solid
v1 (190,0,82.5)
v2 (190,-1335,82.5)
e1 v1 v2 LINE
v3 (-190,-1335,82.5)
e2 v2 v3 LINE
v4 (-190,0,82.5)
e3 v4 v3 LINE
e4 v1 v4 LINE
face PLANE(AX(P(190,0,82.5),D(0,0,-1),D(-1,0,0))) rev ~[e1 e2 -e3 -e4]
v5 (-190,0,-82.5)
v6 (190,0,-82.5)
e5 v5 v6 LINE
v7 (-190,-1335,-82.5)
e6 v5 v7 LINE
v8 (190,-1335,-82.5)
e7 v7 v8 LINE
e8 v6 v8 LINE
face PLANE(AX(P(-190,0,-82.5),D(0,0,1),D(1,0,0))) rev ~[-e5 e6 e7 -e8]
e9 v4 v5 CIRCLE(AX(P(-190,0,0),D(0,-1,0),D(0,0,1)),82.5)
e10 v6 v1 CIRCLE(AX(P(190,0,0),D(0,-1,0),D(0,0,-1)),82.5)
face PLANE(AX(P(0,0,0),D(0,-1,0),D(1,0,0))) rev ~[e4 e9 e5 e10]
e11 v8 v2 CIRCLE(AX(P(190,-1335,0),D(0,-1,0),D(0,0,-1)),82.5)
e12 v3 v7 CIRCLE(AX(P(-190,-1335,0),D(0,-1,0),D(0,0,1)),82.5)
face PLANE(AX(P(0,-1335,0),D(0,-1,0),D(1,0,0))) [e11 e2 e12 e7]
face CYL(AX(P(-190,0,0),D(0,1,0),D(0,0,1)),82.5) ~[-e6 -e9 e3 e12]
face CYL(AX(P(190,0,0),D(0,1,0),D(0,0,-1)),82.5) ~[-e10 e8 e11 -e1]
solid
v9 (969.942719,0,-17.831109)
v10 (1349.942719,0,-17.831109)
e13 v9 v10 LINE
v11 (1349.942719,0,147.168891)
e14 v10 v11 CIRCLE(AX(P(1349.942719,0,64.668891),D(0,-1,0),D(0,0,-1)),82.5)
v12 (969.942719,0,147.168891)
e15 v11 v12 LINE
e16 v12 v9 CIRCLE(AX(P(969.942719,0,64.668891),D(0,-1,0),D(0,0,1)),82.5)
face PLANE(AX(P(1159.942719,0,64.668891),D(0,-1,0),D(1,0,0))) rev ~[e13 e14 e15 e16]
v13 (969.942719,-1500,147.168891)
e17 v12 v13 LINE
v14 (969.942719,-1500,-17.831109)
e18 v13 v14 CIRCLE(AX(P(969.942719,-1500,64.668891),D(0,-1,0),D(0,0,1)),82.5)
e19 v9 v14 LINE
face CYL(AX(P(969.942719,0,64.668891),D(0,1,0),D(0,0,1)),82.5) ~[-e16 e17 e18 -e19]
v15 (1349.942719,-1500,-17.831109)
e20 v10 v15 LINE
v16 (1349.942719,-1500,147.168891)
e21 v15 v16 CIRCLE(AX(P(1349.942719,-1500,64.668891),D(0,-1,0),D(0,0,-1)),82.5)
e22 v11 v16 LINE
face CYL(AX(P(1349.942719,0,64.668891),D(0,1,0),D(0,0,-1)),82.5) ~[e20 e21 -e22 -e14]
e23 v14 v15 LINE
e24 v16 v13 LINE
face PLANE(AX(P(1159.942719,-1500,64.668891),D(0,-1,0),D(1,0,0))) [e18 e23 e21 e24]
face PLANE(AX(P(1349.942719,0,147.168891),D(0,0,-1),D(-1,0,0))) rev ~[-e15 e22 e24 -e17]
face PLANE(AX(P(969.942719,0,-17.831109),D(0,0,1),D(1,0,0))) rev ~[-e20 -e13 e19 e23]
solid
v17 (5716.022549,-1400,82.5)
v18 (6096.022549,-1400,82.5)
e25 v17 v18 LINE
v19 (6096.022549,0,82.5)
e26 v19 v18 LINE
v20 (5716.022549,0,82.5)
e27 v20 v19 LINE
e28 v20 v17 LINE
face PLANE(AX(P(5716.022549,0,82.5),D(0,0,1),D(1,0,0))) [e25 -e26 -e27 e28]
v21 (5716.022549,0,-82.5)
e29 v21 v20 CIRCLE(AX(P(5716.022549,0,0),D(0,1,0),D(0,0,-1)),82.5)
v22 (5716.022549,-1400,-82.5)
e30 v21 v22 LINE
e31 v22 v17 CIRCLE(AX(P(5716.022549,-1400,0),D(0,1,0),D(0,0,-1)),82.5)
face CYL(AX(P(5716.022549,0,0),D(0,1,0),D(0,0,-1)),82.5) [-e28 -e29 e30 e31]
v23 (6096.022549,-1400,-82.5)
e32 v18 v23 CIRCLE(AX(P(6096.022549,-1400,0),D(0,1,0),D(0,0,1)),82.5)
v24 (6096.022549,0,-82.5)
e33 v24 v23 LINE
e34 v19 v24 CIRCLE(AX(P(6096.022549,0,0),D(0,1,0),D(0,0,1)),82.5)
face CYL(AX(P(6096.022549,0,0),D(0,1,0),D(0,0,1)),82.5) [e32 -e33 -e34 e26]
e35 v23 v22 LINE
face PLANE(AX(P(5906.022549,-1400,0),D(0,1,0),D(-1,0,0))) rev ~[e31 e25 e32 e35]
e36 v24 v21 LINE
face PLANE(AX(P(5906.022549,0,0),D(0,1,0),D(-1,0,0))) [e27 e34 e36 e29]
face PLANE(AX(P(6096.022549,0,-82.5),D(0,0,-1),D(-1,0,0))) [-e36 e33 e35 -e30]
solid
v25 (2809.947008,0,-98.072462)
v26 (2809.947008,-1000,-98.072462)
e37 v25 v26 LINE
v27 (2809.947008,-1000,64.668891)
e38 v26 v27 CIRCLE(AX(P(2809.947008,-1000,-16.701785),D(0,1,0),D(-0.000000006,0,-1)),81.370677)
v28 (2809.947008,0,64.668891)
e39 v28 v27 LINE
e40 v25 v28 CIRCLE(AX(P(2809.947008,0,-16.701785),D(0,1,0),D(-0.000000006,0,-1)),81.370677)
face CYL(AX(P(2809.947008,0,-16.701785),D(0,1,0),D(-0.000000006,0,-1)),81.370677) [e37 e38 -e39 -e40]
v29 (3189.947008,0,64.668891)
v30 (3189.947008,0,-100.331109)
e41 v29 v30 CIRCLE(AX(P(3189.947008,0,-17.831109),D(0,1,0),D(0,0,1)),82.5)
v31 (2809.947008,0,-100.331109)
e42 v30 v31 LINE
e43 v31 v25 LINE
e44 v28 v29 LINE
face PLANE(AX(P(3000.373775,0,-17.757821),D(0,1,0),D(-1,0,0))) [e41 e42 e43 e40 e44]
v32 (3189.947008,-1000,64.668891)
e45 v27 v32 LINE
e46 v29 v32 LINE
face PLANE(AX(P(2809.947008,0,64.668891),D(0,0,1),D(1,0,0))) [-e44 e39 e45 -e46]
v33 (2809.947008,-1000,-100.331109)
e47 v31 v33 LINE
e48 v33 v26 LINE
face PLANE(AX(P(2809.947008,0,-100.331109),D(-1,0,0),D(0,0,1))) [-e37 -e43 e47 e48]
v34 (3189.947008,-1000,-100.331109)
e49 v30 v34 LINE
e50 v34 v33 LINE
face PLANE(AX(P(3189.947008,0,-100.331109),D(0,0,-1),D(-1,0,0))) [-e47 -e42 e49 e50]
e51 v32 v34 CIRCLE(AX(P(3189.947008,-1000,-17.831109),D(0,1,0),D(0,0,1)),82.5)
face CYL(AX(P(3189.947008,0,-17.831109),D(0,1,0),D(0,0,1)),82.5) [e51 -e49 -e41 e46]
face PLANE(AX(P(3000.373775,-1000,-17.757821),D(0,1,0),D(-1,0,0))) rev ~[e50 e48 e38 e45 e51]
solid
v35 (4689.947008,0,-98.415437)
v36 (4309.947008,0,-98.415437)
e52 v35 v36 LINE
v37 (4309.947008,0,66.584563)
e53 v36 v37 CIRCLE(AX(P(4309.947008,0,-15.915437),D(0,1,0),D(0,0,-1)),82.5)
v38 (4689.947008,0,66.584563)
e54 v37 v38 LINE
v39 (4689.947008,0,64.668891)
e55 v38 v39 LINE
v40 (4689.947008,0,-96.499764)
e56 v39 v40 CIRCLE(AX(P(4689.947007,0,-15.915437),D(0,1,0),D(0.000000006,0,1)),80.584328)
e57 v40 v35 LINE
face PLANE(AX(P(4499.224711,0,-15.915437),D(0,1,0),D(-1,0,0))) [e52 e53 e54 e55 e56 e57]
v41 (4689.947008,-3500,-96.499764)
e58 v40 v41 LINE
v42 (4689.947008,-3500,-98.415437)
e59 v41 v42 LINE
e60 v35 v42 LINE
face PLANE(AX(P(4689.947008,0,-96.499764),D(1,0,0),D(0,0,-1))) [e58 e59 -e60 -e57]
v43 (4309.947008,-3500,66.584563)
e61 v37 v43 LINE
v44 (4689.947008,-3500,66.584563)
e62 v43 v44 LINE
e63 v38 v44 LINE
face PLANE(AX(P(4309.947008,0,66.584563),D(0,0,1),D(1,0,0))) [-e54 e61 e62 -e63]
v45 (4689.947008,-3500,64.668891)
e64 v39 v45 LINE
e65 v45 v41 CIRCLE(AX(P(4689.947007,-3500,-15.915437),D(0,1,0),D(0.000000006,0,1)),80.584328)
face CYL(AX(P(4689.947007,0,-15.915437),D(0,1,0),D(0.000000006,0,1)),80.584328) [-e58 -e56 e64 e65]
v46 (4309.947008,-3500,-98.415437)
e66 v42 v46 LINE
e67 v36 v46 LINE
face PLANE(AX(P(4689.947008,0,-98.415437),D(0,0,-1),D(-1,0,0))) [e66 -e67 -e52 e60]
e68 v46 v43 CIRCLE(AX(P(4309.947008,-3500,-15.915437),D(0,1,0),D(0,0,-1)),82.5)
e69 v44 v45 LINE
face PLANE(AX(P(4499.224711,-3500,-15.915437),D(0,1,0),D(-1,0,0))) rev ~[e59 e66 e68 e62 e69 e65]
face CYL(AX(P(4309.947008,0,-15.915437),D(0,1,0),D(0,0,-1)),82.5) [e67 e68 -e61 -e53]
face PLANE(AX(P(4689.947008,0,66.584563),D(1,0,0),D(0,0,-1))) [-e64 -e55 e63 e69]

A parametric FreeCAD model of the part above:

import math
import FreeCAD as App
import Part
import Sketcher

V = App.Vector

doc = App.newDocument("Part")
params = doc.addObject("Spreadsheet::Sheet", "Params")
for row, (alias, value) in enumerate([
    ("sketch1_radius", "82.5 mm"),
    ("sketch1_width", "380 mm"),
    ("pad1_length", "1335 mm"),
    ("sketch2_radius", "82.5 mm"),
    ("sketch2_width", "380 mm"),
    ("pad2_length", "1500 mm"),
    ("sketch3_radius", "82.5 mm"),
    ("sketch3_width", "380 mm"),
    ("pad3_length", "1000 mm"),
    ("sketch4_radius", "82.5 mm"),
    ("sketch4_width", "380 mm"),
    ("pad4_length", "3500 mm"),
    ("sketch5_radius", "82.5 mm"),
    ("sketch5_width", "380 mm"),
    ("pad5_length", "1400 mm"),
], start=1):
    params.set(f"A{row}", alias)
    params.set(f"B{row}", "=" + value)
    params.setAlias(f"B{row}", alias)

body = doc.addObject("PartDesign::Body", "Body")

sketch1 = body.newObject("Sketcher::SketchObject", "Sketch")
sketch1.AttachmentSupport = (doc.getObject("XZ_Plane"), [""])
sketch1.MapMode = "FlatFace"
sketch1.addGeometry([
    Part.LineSegment(V(-190, -82, 0), V(190, -82, 0)),
    Part.ArcOfCircle(Part.Circle(V(190, 0, 0), V(0, 0, 1), 82), math.radians(-90), math.radians(90)),
    Part.LineSegment(V(190, 82, 0), V(-190, 82, 0)),
    Part.ArcOfCircle(Part.Circle(V(-190, 0, 0), V(0, 0, 1), 82), math.radians(90), math.radians(270)),
], False)
sketch1.addConstraint([
    Sketcher.Constraint("Tangent", 0, 2, 1, 1),
    Sketcher.Constraint("Tangent", 1, 2, 2, 1),
    Sketcher.Constraint("Tangent", 2, 2, 3, 1),
    Sketcher.Constraint("Tangent", 3, 2, 0, 1),
    Sketcher.Constraint("Horizontal", 0),
    Sketcher.Constraint("Horizontal", 2),
    Sketcher.Constraint("Symmetric", 1, 3, 3, 3, -1, 1),
    Sketcher.Constraint("Radius", 1, 82.5),
    Sketcher.Constraint("DistanceX", 0, 1, 0, 2, 380.0),
])
sketch1.setExpression("Constraints[7]", "Params.sketch1_radius")
sketch1.setExpression("Constraints[8]", "Params.sketch1_width")
pad1 = body.newObject("PartDesign::Pad", "Pad")
pad1.Profile = sketch1
pad1.setExpression("Length", "Params.pad1_length")
body2 = doc.addObject("PartDesign::Body", "Body001")

sketch2 = body2.newObject("Sketcher::SketchObject", "Sketch001")
sketch2.AttachmentSupport = (doc.getObject("XZ_Plane001"), [""])
sketch2.MapMode = "FlatFace"
sketch2.addGeometry([
    Part.LineSegment(V(970, -18, 0), V(1350, -18, 0)),
    Part.ArcOfCircle(Part.Circle(V(1350, 65, 0), V(0, 0, 1), 82), math.radians(-90), math.radians(90)),
    Part.LineSegment(V(1350, 147, 0), V(970, 147, 0)),
    Part.ArcOfCircle(Part.Circle(V(970, 65, 0), V(0, 0, 1), 82), math.radians(90), math.radians(270)),
], False)
sketch2.addConstraint([
    Sketcher.Constraint("Tangent", 0, 2, 1, 1),
    Sketcher.Constraint("Tangent", 1, 2, 2, 1),
    Sketcher.Constraint("Tangent", 2, 2, 3, 1),
    Sketcher.Constraint("Tangent", 3, 2, 0, 1),
    Sketcher.Constraint("Horizontal", 0),
    Sketcher.Constraint("Horizontal", 2),
    Sketcher.Constraint("Radius", 1, 82.5),
    Sketcher.Constraint("DistanceX", 0, 1, 0, 2, 380.0),
    Sketcher.Constraint("DistanceX", -1, 1, 1, 3, 1349.942719),
    Sketcher.Constraint("DistanceY", -1, 1, 1, 3, 64.668891),
])
sketch2.setExpression("Constraints[6]", "Params.sketch2_radius")
sketch2.setExpression("Constraints[7]", "Params.sketch2_width")
pad2 = body2.newObject("PartDesign::Pad", "Pad001")
pad2.Profile = sketch2
pad2.setExpression("Length", "Params.pad2_length")
body3 = doc.addObject("PartDesign::Body", "Body002")

sketch3 = body3.newObject("Sketcher::SketchObject", "Sketch002")
sketch3.AttachmentSupport = (doc.getObject("XZ_Plane002"), [""])
sketch3.MapMode = "FlatFace"
sketch3.addGeometry([
    Part.ArcOfCircle(Part.Circle(V(3189.9, -17.8, 0), V(0, 0, 1), 82.5), math.radians(-90), math.radians(90)),
    Part.LineSegment(V(3189.9, -100.3, 0), V(2809.9, -100.3, 0)),
    Part.LineSegment(V(2809.9, -100.3, 0), V(2809.9, -98.1, 0)),
    Part.ArcOfCircle(Part.Circle(V(2809.9, -16.7, 0), V(0, 0, 1), 81.4), math.radians(90), math.radians(270)),
    Part.LineSegment(V(2809.9, 64.7, 0), V(3189.9, 64.7, 0)),
], False)
sketch3.addConstraint([
    Sketcher.Constraint("Tangent", 0, 1, 1, 1),
    Sketcher.Constraint("Coincident", 1, 2, 2, 1),
    Sketcher.Constraint("Coincident", 2, 2, 3, 2),
    Sketcher.Constraint("Tangent", 3, 1, 4, 1),
    Sketcher.Constraint("Tangent", 4, 2, 0, 2),
    Sketcher.Constraint("Horizontal", 1),
    Sketcher.Constraint("Vertical", 2),
    Sketcher.Constraint("Horizontal", 4),
    Sketcher.Constraint("Vertical", 3, 3, 1, 2),
    Sketcher.Constraint("Radius", 0, 82.5),
    Sketcher.Constraint("DistanceX", 1, 2, 1, 1, 380.0),
    Sketcher.Constraint("Radius", 3, 81.370677),
    Sketcher.Constraint("DistanceX", -1, 1, 0, 3, 3189.947008),
    Sketcher.Constraint("DistanceY", 0, 3, -1, 1, 17.831109),
])
sketch3.setExpression("Constraints[9]", "Params.sketch3_radius")
sketch3.setExpression("Constraints[10]", "Params.sketch3_width")
pad3 = body3.newObject("PartDesign::Pad", "Pad002")
pad3.Profile = sketch3
pad3.setExpression("Length", "Params.pad3_length")
body4 = doc.addObject("PartDesign::Body", "Body003")

sketch4 = body4.newObject("Sketcher::SketchObject", "Sketch003")
sketch4.AttachmentSupport = (doc.getObject("XZ_Plane003"), [""])
sketch4.MapMode = "FlatFace"
sketch4.addGeometry([
    Part.LineSegment(V(4689.9, -96.5, 0), V(4689.9, -98.4, 0)),
    Part.LineSegment(V(4689.9, -98.4, 0), V(4309.9, -98.4, 0)),
    Part.ArcOfCircle(Part.Circle(V(4309.9, -15.9, 0), V(0, 0, 1), 82.5), math.radians(90), math.radians(270)),
    Part.LineSegment(V(4309.9, 66.6, 0), V(4689.9, 66.6, 0)),
    Part.LineSegment(V(4689.9, 66.6, 0), V(4689.9, 64.7, 0)),
    Part.ArcOfCircle(Part.Circle(V(4689.9, -15.9, 0), V(0, 0, 1), 80.6), math.radians(-90), math.radians(90)),
], False)
sketch4.addConstraint([
    Sketcher.Constraint("Coincident", 0, 2, 1, 1),
    Sketcher.Constraint("Tangent", 1, 2, 2, 2),
    Sketcher.Constraint("Tangent", 2, 1, 3, 1),
    Sketcher.Constraint("Coincident", 3, 2, 4, 1),
    Sketcher.Constraint("Coincident", 4, 2, 5, 2),
    Sketcher.Constraint("Coincident", 5, 1, 0, 1),
    Sketcher.Constraint("Vertical", 0),
    Sketcher.Constraint("Horizontal", 1),
    Sketcher.Constraint("Horizontal", 3),
    Sketcher.Constraint("Vertical", 4),
    Sketcher.Constraint("Horizontal", 2, 3, 5, 3),
    Sketcher.Constraint("Vertical", 5, 3, 0, 2),
    Sketcher.Constraint("Vertical", 0, 2, 3, 2),
    Sketcher.Constraint("Radius", 2, 82.5),
    Sketcher.Constraint("DistanceX", 1, 2, 1, 1, 380.0),
    Sketcher.Constraint("Radius", 5, 80.584328),
    Sketcher.Constraint("DistanceX", -1, 1, 2, 3, 4309.947008),
    Sketcher.Constraint("DistanceY", -1, 1, 4, 2, 64.668891),
])
sketch4.setExpression("Constraints[13]", "Params.sketch4_radius")
sketch4.setExpression("Constraints[14]", "Params.sketch4_width")
pad4 = body4.newObject("PartDesign::Pad", "Pad003")
pad4.Profile = sketch4
pad4.setExpression("Length", "Params.pad4_length")
body5 = doc.addObject("PartDesign::Body", "Body004")

sketch5 = body5.newObject("Sketcher::SketchObject", "Sketch004")
sketch5.AttachmentSupport = (doc.getObject("XZ_Plane004"), [""])
sketch5.MapMode = "FlatFace"
sketch5.addGeometry([
    Part.ArcOfCircle(Part.Circle(V(6096, 0, 0), V(0, 0, 1), 82), math.radians(-90), math.radians(90)),
    Part.LineSegment(V(6096, -82, 0), V(5716, -82, 0)),
    Part.ArcOfCircle(Part.Circle(V(5716, 0, 0), V(0, 0, 1), 82), math.radians(90), math.radians(270)),
    Part.LineSegment(V(5716, 82, 0), V(6096, 82, 0)),
], False)
sketch5.addConstraint([
    Sketcher.Constraint("Tangent", 0, 1, 1, 1),
    Sketcher.Constraint("Tangent", 1, 2, 2, 2),
    Sketcher.Constraint("Tangent", 2, 1, 3, 1),
    Sketcher.Constraint("Tangent", 3, 2, 0, 2),
    Sketcher.Constraint("Horizontal", 1),
    Sketcher.Constraint("Horizontal", 3),
    Sketcher.Constraint("PointOnObject", 0, 3, -1),
    Sketcher.Constraint("Radius", 0, 82.5),
    Sketcher.Constraint("DistanceX", 1, 2, 1, 1, 380.0),
    Sketcher.Constraint("DistanceX", -1, 1, 0, 3, 6096.022549),
])
sketch5.setExpression("Constraints[7]", "Params.sketch5_radius")
sketch5.setExpression("Constraints[8]", "Params.sketch5_width")
pad5 = body5.newObject("PartDesign::Pad", "Pad004")
pad5.Profile = sketch5
pad5.setExpression("Length", "Params.pad5_length")

doc.recompute()
